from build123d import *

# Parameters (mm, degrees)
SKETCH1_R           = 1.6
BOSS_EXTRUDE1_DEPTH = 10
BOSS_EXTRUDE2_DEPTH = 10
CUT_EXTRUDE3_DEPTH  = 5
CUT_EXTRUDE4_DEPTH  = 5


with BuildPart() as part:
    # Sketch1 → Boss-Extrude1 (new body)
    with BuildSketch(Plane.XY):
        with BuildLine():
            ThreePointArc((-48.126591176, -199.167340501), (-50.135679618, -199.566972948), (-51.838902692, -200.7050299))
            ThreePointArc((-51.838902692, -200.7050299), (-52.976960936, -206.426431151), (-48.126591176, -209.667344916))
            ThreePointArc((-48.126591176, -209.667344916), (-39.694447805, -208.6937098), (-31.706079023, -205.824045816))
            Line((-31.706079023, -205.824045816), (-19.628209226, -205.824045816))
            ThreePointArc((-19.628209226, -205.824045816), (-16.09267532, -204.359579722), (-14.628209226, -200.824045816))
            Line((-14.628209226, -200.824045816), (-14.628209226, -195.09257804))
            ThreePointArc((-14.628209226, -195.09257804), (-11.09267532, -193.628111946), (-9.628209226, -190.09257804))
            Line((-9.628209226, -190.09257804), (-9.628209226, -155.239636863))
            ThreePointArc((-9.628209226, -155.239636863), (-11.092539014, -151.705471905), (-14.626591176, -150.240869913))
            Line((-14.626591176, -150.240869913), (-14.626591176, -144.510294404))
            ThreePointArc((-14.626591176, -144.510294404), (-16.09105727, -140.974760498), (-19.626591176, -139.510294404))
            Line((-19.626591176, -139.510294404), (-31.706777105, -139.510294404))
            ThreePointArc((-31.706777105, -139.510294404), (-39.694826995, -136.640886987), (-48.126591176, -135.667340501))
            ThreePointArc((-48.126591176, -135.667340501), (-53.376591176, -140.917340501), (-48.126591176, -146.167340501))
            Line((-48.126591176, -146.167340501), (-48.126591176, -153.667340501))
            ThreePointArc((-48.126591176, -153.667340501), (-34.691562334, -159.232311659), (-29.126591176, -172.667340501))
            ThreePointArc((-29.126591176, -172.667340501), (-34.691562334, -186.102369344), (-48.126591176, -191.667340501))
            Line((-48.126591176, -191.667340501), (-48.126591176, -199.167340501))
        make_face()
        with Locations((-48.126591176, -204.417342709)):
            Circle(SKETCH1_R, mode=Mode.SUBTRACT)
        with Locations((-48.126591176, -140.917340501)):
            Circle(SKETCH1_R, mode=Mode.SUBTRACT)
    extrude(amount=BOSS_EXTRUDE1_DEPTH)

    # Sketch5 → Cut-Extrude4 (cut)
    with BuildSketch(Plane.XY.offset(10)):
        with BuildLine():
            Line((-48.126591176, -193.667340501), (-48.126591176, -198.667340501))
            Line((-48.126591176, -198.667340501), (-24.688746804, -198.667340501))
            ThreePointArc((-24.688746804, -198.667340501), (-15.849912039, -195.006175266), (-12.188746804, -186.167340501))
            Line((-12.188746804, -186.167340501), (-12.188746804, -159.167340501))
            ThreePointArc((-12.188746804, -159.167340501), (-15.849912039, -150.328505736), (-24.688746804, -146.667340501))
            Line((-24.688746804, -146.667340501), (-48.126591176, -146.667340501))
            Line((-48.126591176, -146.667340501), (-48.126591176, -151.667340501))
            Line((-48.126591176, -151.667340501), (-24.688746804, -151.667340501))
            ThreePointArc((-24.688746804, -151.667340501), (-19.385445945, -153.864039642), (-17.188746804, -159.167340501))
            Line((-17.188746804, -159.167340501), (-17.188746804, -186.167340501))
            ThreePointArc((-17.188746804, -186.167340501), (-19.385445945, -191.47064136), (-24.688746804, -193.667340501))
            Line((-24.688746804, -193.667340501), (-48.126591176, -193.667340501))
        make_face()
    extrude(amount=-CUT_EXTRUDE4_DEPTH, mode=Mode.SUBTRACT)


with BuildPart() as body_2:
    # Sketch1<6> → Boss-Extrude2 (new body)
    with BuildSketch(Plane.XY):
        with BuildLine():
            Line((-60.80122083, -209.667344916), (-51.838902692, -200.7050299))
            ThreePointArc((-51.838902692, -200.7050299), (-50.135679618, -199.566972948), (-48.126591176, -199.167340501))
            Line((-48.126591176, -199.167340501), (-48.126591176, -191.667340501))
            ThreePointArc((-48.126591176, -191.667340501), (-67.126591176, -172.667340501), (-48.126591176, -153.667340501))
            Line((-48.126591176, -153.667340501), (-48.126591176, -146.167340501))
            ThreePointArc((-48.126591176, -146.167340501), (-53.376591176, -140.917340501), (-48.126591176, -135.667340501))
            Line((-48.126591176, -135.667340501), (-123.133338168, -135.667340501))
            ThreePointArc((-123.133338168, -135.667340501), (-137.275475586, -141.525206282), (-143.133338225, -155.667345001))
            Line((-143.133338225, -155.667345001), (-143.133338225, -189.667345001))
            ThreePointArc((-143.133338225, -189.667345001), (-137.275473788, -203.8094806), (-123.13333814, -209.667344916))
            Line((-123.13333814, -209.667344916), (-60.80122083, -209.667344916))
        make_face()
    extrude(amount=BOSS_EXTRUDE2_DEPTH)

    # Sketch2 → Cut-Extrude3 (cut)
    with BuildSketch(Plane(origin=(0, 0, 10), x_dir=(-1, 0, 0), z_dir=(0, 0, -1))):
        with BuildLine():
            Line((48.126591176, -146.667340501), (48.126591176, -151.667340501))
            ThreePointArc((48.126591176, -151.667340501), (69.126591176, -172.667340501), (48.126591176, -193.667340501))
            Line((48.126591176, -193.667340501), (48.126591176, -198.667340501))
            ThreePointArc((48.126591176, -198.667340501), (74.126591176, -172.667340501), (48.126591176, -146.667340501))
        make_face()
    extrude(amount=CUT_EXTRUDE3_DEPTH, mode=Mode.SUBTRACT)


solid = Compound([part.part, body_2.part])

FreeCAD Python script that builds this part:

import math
import FreeCAD as App
import Part
import Sketcher
Q = App.Units.Quantity

doc = App.newDocument("Part")
params = doc.addObject("Spreadsheet::Sheet", "Params")
for row, (alias, value) in enumerate([
    ("sketch1_radius", "5 mm"),
    ("sketch1_radius2", "37 mm"),
    ("sketch1_radius3", "19 mm"),
    ("sketch1_diameter", "3.2 mm"),
    ("sketch1_radius4", "5.25 mm"),
    ("pad1_length", "10 mm"),
    ("sketch2_radius", "12.5 mm"),
    ("sketch2_radius2", "7.5 mm"),
    ("sketch2_height", "27 mm"),
    ("pocket1_length", "5 mm"),
    ("sketch3_radius", "19 mm"),
    ("sketch3_radius2", "19.999999 mm"),
    ("sketch3_height", "34 mm"),
    ("sketch3_radius3", "5.25 mm"),
    ("sketch3_height2", "7.5 mm"),
    ("pad2_length", "10 mm"),
    ("sketch4_radius", "21 mm"),
    ("sketch4_radius2", "26 mm"),
    ("pocket2_length", "5 mm"),
], start=1):
    params.set(f"A{row}", alias)
    params.set(f"B{row}", "=" + value)
    params.setAlias(f"B{row}", alias)

body = doc.addObject("PartDesign::Body", "Body")

# Sketch on XY plane
sketch1 = doc.addObject("Sketcher::SketchObject", "Sketch")
body.addObject(sketch1)
sketch1.AttachmentSupport = (doc.XY_Plane, [""])
sketch1.MapMode = "FlatFace"
sketch1.addGeometry([
    Part.ArcOfCircle(Part.Circle(App.Vector(-48.126591, -204.417343, 0), App.Vector(0, 0, 1), 5.250002), math.radians(90), math.radians(134.99999)),  # 0
    Part.ArcOfCircle(Part.Circle(App.Vector(-48.126591, -204.417343, 0), App.Vector(0, 0, 1), 5.250002), math.radians(134.99999), math.radians(270)),  # 1
    Part.ArcOfCircle(Part.Circle(App.Vector(-48.126591, -172.66734, 0), App.Vector(0, 0, 1), 37.000004), math.radians(-90), math.radians(-63.653567)),  # 2
    Part.LineSegment(App.Vector(-31.706079, -205.824046, 0), App.Vector(-19.628209, -205.824046, 0)),  # 3
    Part.ArcOfCircle(Part.Circle(App.Vector(-19.628209, -200.824046, 0), App.Vector(0, 0, 1), 5), math.radians(-90), math.radians(0)),  # 4
    Part.LineSegment(App.Vector(-14.628209, -200.824046, 0), App.Vector(-14.628209, -195.092578, 0)),  # 5
    Part.ArcOfCircle(Part.Circle(App.Vector(-14.628209, -190.092578, 0), App.Vector(0, 0, 1), 5), math.radians(-90), math.radians(0)),  # 6
    Part.LineSegment(App.Vector(-9.628209, -190.092578, 0), App.Vector(-9.628209, -155.239637, 0)),  # 7
    Part.ArcOfCircle(Part.Circle(App.Vector(-14.628209, -155.24087, 0), App.Vector(0, 0, 1), 5), math.radians(0.014127), math.radians(89.98146)),  # 8
    Part.LineSegment(App.Vector(-14.626591, -150.24087, 0), App.Vector(-14.626591, -144.510294, 0)),  # 9
    Part.ArcOfCircle(Part.Circle(App.Vector(-19.626591, -144.510294, 0), App.Vector(0, 0, 1), 5), math.radians(0), math.radians(90)),  # 10
    Part.LineSegment(App.Vector(-19.626591, -139.510294, 0), App.Vector(-31.706777, -139.510294, 0)),  # 11
    Part.ArcOfCircle(Part.Circle(App.Vector(-48.126591, -172.667341, 0), App.Vector(0, 0, 1), 37), math.radians(63.654769), math.radians(90)),  # 12
    Part.ArcOfCircle(Part.Circle(App.Vector(-48.126591, -140.917341, 0), App.Vector(0, 0, 1), 5.25), math.radians(90), math.radians(270)),  # 13
    Part.LineSegment(App.Vector(-48.126591, -146.167341, 0), App.Vector(-48.126591, -153.667341, 0)),  # 14
    Part.ArcOfCircle(Part.Circle(App.Vector(-48.126591, -172.667341, 0), App.Vector(0, 0, 1), 19), math.radians(0), math.radians(90)),  # 15
    Part.ArcOfCircle(Part.Circle(App.Vector(-48.126591, -172.667341, 0), App.Vector(0, 0, 1), 19), math.radians(-90), math.radians(0)),  # 16
    Part.LineSegment(App.Vector(-48.126591, -191.667341, 0), App.Vector(-48.126591, -199.167341, 0)),  # 17
    Part.Circle(App.Vector(-48.126591, -204.417343, 0), App.Vector(0, 0, 1), 1.6),  # 18
    Part.Circle(App.Vector(-48.126591, -140.917341, 0), App.Vector(0, 0, 1), 1.6),  # 19
], False)
sketch1.addConstraint([
    Sketcher.Constraint("Tangent", 0, 2, 1, 1),
    Sketcher.Constraint("Tangent", 1, 2, 2, 1),
    Sketcher.Constraint("Coincident", 2, 2, 3, 1),
    Sketcher.Constraint("Tangent", 3, 2, 4, 1),
    Sketcher.Constraint("Tangent", 4, 2, 5, 1),
    Sketcher.Constraint("Coincident", 5, 2, 6, 1),
    Sketcher.Constraint("Tangent", 6, 2, 7, 1),
    Sketcher.Constraint("Coincident", 7, 2, 8, 1),
    Sketcher.Constraint("Coincident", 8, 2, 9, 1),
    Sketcher.Constraint("Tangent", 9, 2, 10, 1),
    Sketcher.Constraint("Tangent", 10, 2, 11, 1),
    Sketcher.Constraint("Coincident", 11, 2, 12, 1),
    Sketcher.Constraint("Tangent", 12, 2, 13, 1),
    Sketcher.Constraint("Coincident", 13, 2, 14, 1),
    Sketcher.Constraint("Coincident", 14, 2, 15, 2),
    Sketcher.Constraint("Tangent", 15, 1, 16, 2),
    Sketcher.Constraint("Coincident", 16, 1, 17, 1),
    Sketcher.Constraint("Coincident", 17, 2, 0, 1),
    Sketcher.Constraint("Horizontal", 3),
    Sketcher.Constraint("Vertical", 5),
    Sketcher.Constraint("Vertical", 7),
    Sketcher.Constraint("Vertical", 9),
    Sketcher.Constraint("Horizontal", 11),
    Sketcher.Constraint("Vertical", 14),
    Sketcher.Constraint("Vertical", 17),
    Sketcher.Constraint("Coincident", 12, 3, 2, 3),
    Sketcher.Constraint("Coincident", 15, 3, 2, 3),
    Sketcher.Constraint("Coincident", 18, 3, 0, 3),
    Sketcher.Constraint("Coincident", 19, 3, 13, 3),
    Sketcher.Constraint("Equal", 0, 1),
    Sketcher.Constraint("Equal", 4, 6),
    Sketcher.Constraint("Equal", 6, 8),
    Sketcher.Constraint("Equal", 8, 10),
    Sketcher.Constraint("Equal", 15, 16),
    Sketcher.Constraint("Equal", 18, 19),
    Sketcher.Constraint("Horizontal", 16, 3, 15, 1),
    Sketcher.Constraint("Vertical", 1, 3, 2, 3),
    Sketcher.Constraint("Vertical", 12, 3, 13, 3),
    Sketcher.Constraint("Vertical", 8, 3, 4, 2),
    Sketcher.Constraint("Vertical", 12, 2, 13, 2),
    Sketcher.Constraint("Vertical", 14, 2, 16, 1),
    Sketcher.Constraint("Equal", 14, 17),
    Sketcher.Constraint("Radius", 4, 5.0),
    Sketcher.Constraint("Radius", 12, 37.0),
    Sketcher.Constraint("Radius", 15, 19.0),
    Sketcher.Constraint("Diameter", 18, 3.2),
    Sketcher.Constraint("Radius", 13, 5.25),
    Sketcher.Constraint("DistanceX", 2, 3, 10, 3, 28.5),
    Sketcher.Constraint("Radius", 0, 5.250002),
    Sketcher.Constraint("DistanceX", 3, 1, 3, 2, 12.07787),
    Sketcher.Constraint("DistanceY", 7, 1, 7, 2, 34.852941),
    Sketcher.Constraint("DistanceY", 1, 2, 4, 3, 8.843299),
    Sketcher.Constraint("DistanceX", 11, 2, 11, 1, 12.080186),
    Sketcher.Constraint("DistanceY", 5, 1, 5, 2, 5.731468),
    Sketcher.Constraint("DistanceY", 9, 1, 9, 2, 5.730576),
    Sketcher.Constraint("DistanceX", 0, 3, -1, 1, 48.126591),
    Sketcher.Constraint("DistanceY", 2, 3, -1, 1, 172.66734),
    Sketcher.Constraint("DistanceY", 0, 2, -1, 1, 200.70503),
])
sketch1.setExpression("Constraints[42]", "Params.sketch1_radius")
sketch1.setExpression("Constraints[43]", "Params.sketch1_radius2")
sketch1.setExpression("Constraints[44]", "Params.sketch1_radius3")
sketch1.setExpression("Constraints[45]", "Params.sketch1_diameter")
sketch1.setExpression("Constraints[46]", "Params.sketch1_radius4")
pad1 = doc.addObject("PartDesign::Pad", "Pad")
body.addObject(pad1)
pad1.Profile = sketch1
pad1.setExpression("Length", "Params.pad1_length")

# Sketch on XY plane
sketch2 = doc.addObject("Sketcher::SketchObject", "Sketch001")
body.addObject(sketch2)
sketch2.AttachmentSupport = (doc.XY_Plane, [""])
sketch2.MapMode = "FlatFace"
sketch2.AttachmentOffset = App.Placement(App.Vector(0, 0, 10), App.Rotation())
sketch2.addGeometry([
    Part.LineSegment(App.Vector(-48.126591, -193.667341, 0), App.Vector(-48.126591, -198.667341, 0)),  # 0
    Part.LineSegment(App.Vector(-48.126591, -198.667341, 0), App.Vector(-24.688747, -198.667341, 0)),  # 1
    Part.ArcOfCircle(Part.Circle(App.Vector(-24.688747, -186.167341, 0), App.Vector(0, 0, 1), 12.5), math.radians(-90), math.radians(0)),  # 2
    Part.LineSegment(App.Vector(-12.188747, -186.167341, 0), App.Vector(-12.188747, -159.167341, 0)),  # 3
    Part.ArcOfCircle(Part.Circle(App.Vector(-24.688747, -159.16734, 0), App.Vector(0, 0, 1), 12.5), math.radians(0), math.radians(90)),  # 4
    Part.LineSegment(App.Vector(-24.688747, -146.667341, 0), App.Vector(-48.126591, -146.667341, 0)),  # 5
    Part.LineSegment(App.Vector(-48.126591, -146.667341, 0), App.Vector(-48.126591, -151.667341, 0)),  # 6
    Part.LineSegment(App.Vector(-48.126591, -151.667341, 0), App.Vector(-24.688747, -151.667341, 0)),  # 7
    Part.ArcOfCircle(Part.Circle(App.Vector(-24.688747, -159.167341, 0), App.Vector(0, 0, 1), 7.5), math.radians(0), math.radians(90)),  # 8
    Part.LineSegment(App.Vector(-17.188747, -159.167341, 0), App.Vector(-17.188747, -186.167341, 0)),  # 9
    Part.ArcOfCircle(Part.Circle(App.Vector(-24.688747, -186.167341, 0), App.Vector(0, 0, 1), 7.5), math.radians(-90), math.radians(0)),  # 10
    Part.LineSegment(App.Vector(-24.688747, -193.667341, 0), App.Vector(-48.126591, -193.667341, 0)),  # 11
], False)
sketch2.addConstraint([
    Sketcher.Constraint("Coincident", 0, 2, 1, 1),
    Sketcher.Constraint("Tangent", 1, 2, 2, 1),
    Sketcher.Constraint("Tangent", 2, 2, 3, 1),
    Sketcher.Constraint("Tangent", 3, 2, 4, 1),
    Sketcher.Constraint("Tangent", 4, 2, 5, 1),
    Sketcher.Constraint("Coincident", 5, 2, 6, 1),
    Sketcher.Constraint("Coincident", 6, 2, 7, 1),
    Sketcher.Constraint("Tangent", 7, 2, 8, 2),
    Sketcher.Constraint("Tangent", 8, 1, 9, 1),
    Sketcher.Constraint("Tangent", 9, 2, 10, 2),
    Sketcher.Constraint("Tangent", 10, 1, 11, 1),
    Sketcher.Constraint("Coincident", 11, 2, 0, 1),
    Sketcher.Constraint("Vertical", 0),
    Sketcher.Constraint("Horizontal", 1),
    Sketcher.Constraint("Vertical", 3),
    Sketcher.Constraint("Horizontal", 5),
    Sketcher.Constraint("Vertical", 6),
    Sketcher.Constraint("Horizontal", 7),
    Sketcher.Constraint("Vertical", 9),
    Sketcher.Constraint("Horizontal", 11),
    Sketcher.Constraint("Coincident", 8, 3, 4, 3),
    Sketcher.Constraint("Coincident", 10, 3, 2, 3),
    Sketcher.Constraint("Equal", 2, 4),
    Sketcher.Constraint("Vertical", 0, 2, 5, 2),
    Sketcher.Constraint("Radius", 2, 12.5),
    Sketcher.Constraint("Radius", 8, 7.5),
    Sketcher.Constraint("DistanceY", 3, 1, 3, 2, 27.0),
    Sketcher.Constraint("DistanceX", 1, 1, 1, 2, 23.437844),
    Sketcher.Constraint("DistanceY", 2, 3, -1, 1, 186.167341),
    Sketcher.Constraint("DistanceX", 0, 2, -1, 1, 48.126591),
])
sketch2.setExpression("Constraints[24]", "Params.sketch2_radius")
sketch2.setExpression("Constraints[25]", "Params.sketch2_radius2")
sketch2.setExpression("Constraints[26]", "Params.sketch2_height")
pocket1 = doc.addObject("PartDesign::Pocket", "Pocket")
body.addObject(pocket1)
pocket1.Profile = sketch2
pocket1.setExpression("Length", "Params.pocket1_length")
body2 = doc.addObject("PartDesign::Body", "Body001")

# Sketch on XY plane
sketch3 = doc.addObject("Sketcher::SketchObject", "Sketch002")
body2.addObject(sketch3)
sketch3.AttachmentSupport = (doc.getObject("XY_Plane001"), [""])
sketch3.MapMode = "FlatFace"
sketch3.addGeometry([
    Part.LineSegment(App.Vector(-60.801221, -209.667345, 0), App.Vector(-51.838903, -200.70503, 0)),  # 0
    Part.ArcOfCircle(Part.Circle(App.Vector(-48.126591, -204.417343, 0), App.Vector(0, 0, 1), 5.250002), math.radians(90), math.radians(134.99999)),  # 1
    Part.LineSegment(App.Vector(-48.126591, -199.167341, 0), App.Vector(-48.126591, -191.667341, 0)),  # 2
    Part.ArcOfCircle(Part.Circle(App.Vector(-48.126591, -172.667341, 0), App.Vector(0, 0, 1), 19), math.radians(90), math.radians(270)),  # 3
    Part.LineSegment(App.Vector(-48.126591, -153.667341, 0), App.Vector(-48.126591, -146.167341, 0)),  # 4
    Part.ArcOfCircle(Part.Circle(App.Vector(-48.126591, -140.917341, 0), App.Vector(0, 0, 1), 5.25), math.radians(90), math.radians(270)),  # 5
    Part.LineSegment(App.Vector(-48.126591, -135.667341, 0), App.Vector(-123.133338, -135.667341, 0)),  # 6
    Part.ArcOfCircle(Part.Circle(App.Vector(-123.133339, -155.66734, 0), App.Vector(0, 0, 1), 19.999999), math.radians(89.999998), math.radians(180.000015)),  # 7
    Part.LineSegment(App.Vector(-143.133338, -155.667345, 0), App.Vector(-143.133338, -189.667345, 0)),  # 8
    Part.ArcOfCircle(Part.Circle(App.Vector(-123.133338, -189.667345, 0), App.Vector(0, 0, 1), 20), math.radians(-180), math.radians(-90)),  # 9
    Part.LineSegment(App.Vector(-123.133338, -209.667345, 0), App.Vector(-60.801221, -209.667345, 0)),  # 10
], False)
sketch3.addConstraint([
    Sketcher.Constraint("Tangent", 0, 2, 1, 2),
    Sketcher.Constraint("Coincident", 1, 1, 2, 1),
    Sketcher.Constraint("Coincident", 2, 2, 3, 2),
    Sketcher.Constraint("Coincident", 3, 1, 4, 1),
    Sketcher.Constraint("Coincident", 4, 2, 5, 2),
    Sketcher.Constraint("Tangent", 5, 1, 6, 1),
    Sketcher.Constraint("Tangent", 6, 2, 7, 1),
    Sketcher.Constraint("Tangent", 7, 2, 8, 1),
    Sketcher.Constraint("Tangent", 8, 2, 9, 1),
    Sketcher.Constraint("Tangent", 9, 2, 10, 1),
    Sketcher.Constraint("Coincident", 10, 2, 0, 1),
    Sketcher.Constraint("Vertical", 2),
    Sketcher.Constraint("Vertical", 4),
    Sketcher.Constraint("Horizontal", 6),
    Sketcher.Constraint("Vertical", 8),
    Sketcher.Constraint("Horizontal", 10),
    Sketcher.Constraint("Equal", 7, 9),
    Sketcher.Constraint("Vertical", 1, 3, 3, 3),
    Sketcher.Constraint("Vertical", 3, 3, 5, 3),
    Sketcher.Constraint("Vertical", 5, 3, 1, 1),
    Sketcher.Constraint("Vertical", 2, 2, 3, 1),
    Sketcher.Constraint("Equal", 2, 4),
    Sketcher.Constraint("Radius", 3, 19.0),
    Sketcher.Constraint("Radius", 7, 19.999999),
    Sketcher.Constraint("DistanceY", 8, 2, 8, 1, 34.0),
    Sketcher.Constraint("Angle", 0, Q("44.99999 deg")),
    Sketcher.Constraint("Radius", 5, 5.25),
    Sketcher.Constraint("DistanceY", 2, 1, 2, 2, 7.5),
    Sketcher.Constraint("Radius", 1, 5.250002),
    Sketcher.Constraint("DistanceX", 6, 2, 6, 1, 75.006747),
    Sketcher.Constraint("DistanceX", 1, 3, -1, 1, 48.126591),
    Sketcher.Constraint("DistanceY", 3, 3, -1, 1, 172.667341),
])
sketch3.setExpression("Constraints[22]", "Params.sketch3_radius")
sketch3.setExpression("Constraints[23]", "Params.sketch3_radius2")
sketch3.setExpression("Constraints[24]", "Params.sketch3_height")
sketch3.setExpression("Constraints[26]", "Params.sketch3_radius3")
sketch3.setExpression("Constraints[27]", "Params.sketch3_height2")
pad2 = doc.addObject("PartDesign::Pad", "Pad001")
body2.addObject(pad2)
pad2.Profile = sketch3
pad2.setExpression("Length", "Params.pad2_length")

# Sketch on XY plane
sketch4 = doc.addObject("Sketcher::SketchObject", "Sketch003")
body2.addObject(sketch4)
sketch4.AttachmentSupport = (doc.getObject("XY_Plane001"), [""])
sketch4.MapMode = "FlatFace"
sketch4.AttachmentOffset = App.Placement(App.Vector(0, 0, 10), App.Rotation())
sketch4.addGeometry([
    Part.LineSegment(App.Vector(-48.126591, -146.667341, 0), App.Vector(-48.126591, -151.667341, 0)),
    Part.ArcOfCircle(Part.Circle(App.Vector(-48.126591, -172.667341, 0), App.Vector(0, 0, 1), 21), math.radians(90), math.radians(270)),
    Part.LineSegment(App.Vector(-48.126591, -193.667341, 0), App.Vector(-48.126591, -198.667341, 0)),
    Part.ArcOfCircle(Part.Circle(App.Vector(-48.126591, -172.667341, 0), App.Vector(0, 0, 1), 26), math.radians(90), math.radians(270)),
], False)
sketch4.addConstraint([
    Sketcher.Constraint("Coincident", 0, 2, 1, 1),
    Sketcher.Constraint("Coincident", 1, 2, 2, 1),
    Sketcher.Constraint("Coincident", 2, 2, 3, 2),
    Sketcher.Constraint("Coincident", 3, 1, 0, 1),
    Sketcher.Constraint("Vertical", 0),
    Sketcher.Constraint("Vertical", 2),
    Sketcher.Constraint("Coincident", 3, 3, 1, 3),
    Sketcher.Constraint("Vertical", 3, 3, 0, 2),
    Sketcher.Constraint("Vertical", 0, 2, 1, 2),
    Sketcher.Constraint("Radius", 1, 21.0),
    Sketcher.Constraint("Radius", 3, 26.0),
    Sketcher.Constraint("DistanceX", 1, 3, -1, 1, 48.126591),
    Sketcher.Constraint("DistanceY", 1, 3, -1, 1, 172.667341),
])
sketch4.setExpression("Constraints[9]", "Params.sketch4_radius")
sketch4.setExpression("Constraints[10]", "Params.sketch4_radius2")
pocket2 = doc.addObject("PartDesign::Pocket", "Pocket001")
body2.addObject(pocket2)
pocket2.Profile = sketch4
pocket2.setExpression("Length", "Params.pocket2_length")

doc.recompute()
